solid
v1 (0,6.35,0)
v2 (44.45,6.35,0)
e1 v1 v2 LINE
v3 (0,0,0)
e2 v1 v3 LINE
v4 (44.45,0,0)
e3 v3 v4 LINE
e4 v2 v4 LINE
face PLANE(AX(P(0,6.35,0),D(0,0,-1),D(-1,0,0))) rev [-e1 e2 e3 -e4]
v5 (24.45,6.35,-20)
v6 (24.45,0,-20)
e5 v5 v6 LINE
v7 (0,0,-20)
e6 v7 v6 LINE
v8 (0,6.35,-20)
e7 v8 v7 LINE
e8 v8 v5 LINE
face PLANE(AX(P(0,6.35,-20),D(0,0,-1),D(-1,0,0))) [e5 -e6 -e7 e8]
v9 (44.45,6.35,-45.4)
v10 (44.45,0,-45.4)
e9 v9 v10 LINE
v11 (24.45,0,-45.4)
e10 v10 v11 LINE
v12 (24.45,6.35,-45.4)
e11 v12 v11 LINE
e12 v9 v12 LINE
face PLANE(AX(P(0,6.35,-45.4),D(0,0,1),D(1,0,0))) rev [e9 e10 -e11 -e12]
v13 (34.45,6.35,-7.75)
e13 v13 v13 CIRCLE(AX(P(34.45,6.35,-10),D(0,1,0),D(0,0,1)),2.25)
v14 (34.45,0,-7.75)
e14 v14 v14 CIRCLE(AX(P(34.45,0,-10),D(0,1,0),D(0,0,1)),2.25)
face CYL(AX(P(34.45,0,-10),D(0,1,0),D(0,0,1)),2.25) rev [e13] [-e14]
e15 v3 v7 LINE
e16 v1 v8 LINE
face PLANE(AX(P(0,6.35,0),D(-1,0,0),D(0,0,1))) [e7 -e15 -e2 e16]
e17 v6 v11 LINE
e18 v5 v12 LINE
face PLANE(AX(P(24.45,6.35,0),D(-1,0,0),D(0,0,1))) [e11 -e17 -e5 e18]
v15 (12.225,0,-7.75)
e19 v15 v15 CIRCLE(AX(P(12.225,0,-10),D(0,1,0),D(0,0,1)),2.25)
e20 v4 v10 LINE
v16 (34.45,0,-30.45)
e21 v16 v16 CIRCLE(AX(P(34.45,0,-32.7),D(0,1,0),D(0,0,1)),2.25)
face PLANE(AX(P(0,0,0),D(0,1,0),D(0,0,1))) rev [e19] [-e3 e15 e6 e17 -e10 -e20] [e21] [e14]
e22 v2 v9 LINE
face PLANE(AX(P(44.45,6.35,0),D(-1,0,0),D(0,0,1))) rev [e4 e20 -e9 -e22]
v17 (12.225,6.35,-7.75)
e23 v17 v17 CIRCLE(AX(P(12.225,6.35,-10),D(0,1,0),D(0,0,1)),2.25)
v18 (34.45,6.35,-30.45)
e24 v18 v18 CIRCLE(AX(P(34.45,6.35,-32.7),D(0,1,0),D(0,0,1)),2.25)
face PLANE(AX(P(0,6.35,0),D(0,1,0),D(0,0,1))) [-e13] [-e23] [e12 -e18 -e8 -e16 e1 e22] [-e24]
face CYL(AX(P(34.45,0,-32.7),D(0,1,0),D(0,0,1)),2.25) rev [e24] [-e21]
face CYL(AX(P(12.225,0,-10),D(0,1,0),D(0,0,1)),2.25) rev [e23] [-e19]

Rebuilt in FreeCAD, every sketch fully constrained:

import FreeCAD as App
import Part
import Sketcher


def add_polygon(sketch, points):
    """Adds a closed chain of lines whose ends are joined by coincident constraints."""
    first, n = sketch.GeometryCount, len(points)
    for a, b in zip(points, points[1:] + points[:1]):
        sketch.addGeometry(Part.LineSegment(App.Vector(*a, 0), App.Vector(*b, 0)), False)
    for i in range(n):
        sketch.addConstraint(Sketcher.Constraint("Coincident", first + i, 2, first + (i + 1) % n, 1))

doc = App.newDocument("Part")
body = doc.addObject("PartDesign::Body", "Body")

sketch1 = body.newObject("Sketcher::SketchObject", "Sketch")
sketch1.AttachmentSupport = (doc.getObject("XZ_Plane"), [""])
sketch1.MapMode = "FlatFace"
add_polygon(sketch1, [(24.45, -45.4), (24.45, -20), (0, -20), (0, 0), (44.45, 0), (44.45, -45.4)])
sketch1.addConstraint(Sketcher.Constraint("Vertical", 0))
sketch1.addConstraint(Sketcher.Constraint("Horizontal", 1))
sketch1.addConstraint(Sketcher.Constraint("Vertical", 2))
sketch1.addConstraint(Sketcher.Constraint("Horizontal", 3))
sketch1.addConstraint(Sketcher.Constraint("Vertical", 4))
sketch1.addConstraint(Sketcher.Constraint("Horizontal", 5))
sketch1.addConstraint(Sketcher.Constraint("Coincident", 2, 2, -1, 1))
sketch1.addConstraint(Sketcher.Constraint("Equal", 5, 2))
sketch1.addConstraint(Sketcher.Constraint("DistanceX", 5, 2, 5, 1, 20.0))
sketch1.addConstraint(Sketcher.Constraint("DistanceY", 0, 1, 0, 2, 25.4))
sketch1.addConstraint(Sketcher.Constraint("DistanceX", 1, 2, 1, 1, 24.45))
pad1 = body.newObject("PartDesign::Pad", "Pad")
pad1.Profile = sketch1
pad1.Length = 6.35
pad1.Reversed = True

sketch2 = body.newObject("Sketcher::SketchObject", "Sketch001")
sketch2.AttachmentSupport = (doc.getObject("XZ_Plane"), [""])
sketch2.MapMode = "FlatFace"
sketch2.AttachmentOffset = App.Placement(App.Vector(0, 0, -6.35), App.Rotation())
sketch2.addGeometry(Part.Circle(App.Vector(12.225, -10, 0), App.Vector(0, 0, 1), 2.25), False)
sketch2.addGeometry(Part.Circle(App.Vector(34.45, -10, 0), App.Vector(0, 0, 1), 2.25), False)
sketch2.addGeometry(Part.Circle(App.Vector(34.45, -32.7, 0), App.Vector(0, 0, 1), 2.25), False)
sketch2.addConstraint(Sketcher.Constraint("Equal", 0, 1))
sketch2.addConstraint(Sketcher.Constraint("Equal", 1, 2))
sketch2.addConstraint(Sketcher.Constraint("Horizontal", 0, 3, 1, 3))
sketch2.addConstraint(Sketcher.Constraint("Vertical", 1, 3, 2, 3))
sketch2.addConstraint(Sketcher.Constraint("Diameter", 0, 4.5))
sketch2.addConstraint(Sketcher.Constraint("DistanceY", 0, 3, -1, 1, 10.0))
sketch2.addConstraint(Sketcher.Constraint("DistanceY", 2, 3, -1, 1, 32.7))
sketch2.addConstraint(Sketcher.Constraint("DistanceX", -1, 1, 1, 3, 34.45))
sketch2.addConstraint(Sketcher.Constraint("DistanceX", -1, 1, 0, 3, 12.225))
pocket1 = body.newObject("PartDesign::Pocket", "Pocket")
pocket1.Profile = sketch2
pocket1.Length = 6.35
pocket1.Reversed = True

doc.recompute()
